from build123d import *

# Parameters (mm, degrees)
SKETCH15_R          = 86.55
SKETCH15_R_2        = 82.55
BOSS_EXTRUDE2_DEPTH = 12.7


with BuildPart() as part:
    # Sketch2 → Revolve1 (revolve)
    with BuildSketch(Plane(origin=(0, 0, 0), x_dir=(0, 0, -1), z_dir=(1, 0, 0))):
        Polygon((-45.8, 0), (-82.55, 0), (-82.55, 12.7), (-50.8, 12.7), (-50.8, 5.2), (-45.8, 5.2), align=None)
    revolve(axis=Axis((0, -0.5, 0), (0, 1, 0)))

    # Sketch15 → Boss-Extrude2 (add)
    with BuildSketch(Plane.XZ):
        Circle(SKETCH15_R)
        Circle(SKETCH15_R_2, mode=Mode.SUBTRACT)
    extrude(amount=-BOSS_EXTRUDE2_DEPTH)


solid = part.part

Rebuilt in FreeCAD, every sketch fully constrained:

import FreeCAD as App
import Part
import Sketcher
from FreeCAD import Vector

doc = App.newDocument("Part")
body = doc.addObject("PartDesign::Body", "Body")

# Sketch on YZ plane
sketch1 = doc.addObject("Sketcher::SketchObject", "Sketch")
body.addObject(sketch1)
sketch1.AttachmentSupport = (doc.YZ_Plane, [""])
sketch1.MapMode = "FlatFace"
sketch1.addGeometry([
    Part.LineSegment(Vector(0, 83, 0), Vector(0, 46, 0)),  # 0
    Part.LineSegment(Vector(0, 46, 0), Vector(5, 46, 0)),  # 1
    Part.LineSegment(Vector(5, 46, 0), Vector(5, 51, 0)),  # 2
    Part.LineSegment(Vector(5, 51, 0), Vector(13, 51, 0)),  # 3
    Part.LineSegment(Vector(13, 51, 0), Vector(13, 83, 0)),  # 4
    Part.LineSegment(Vector(13, 83, 0), Vector(0, 83, 0)),  # 5
], False)
sketch1.addConstraint([
    Sketcher.Constraint("Coincident", 0, 2, 1, 1),
    Sketcher.Constraint("Coincident", 1, 2, 2, 1),
    Sketcher.Constraint("Coincident", 2, 2, 3, 1),
    Sketcher.Constraint("Coincident", 3, 2, 4, 1),
    Sketcher.Constraint("Coincident", 4, 2, 5, 1),
    Sketcher.Constraint("Coincident", 5, 2, 0, 1),
    Sketcher.Constraint("Vertical", 0),
    Sketcher.Constraint("Horizontal", 1),
    Sketcher.Constraint("Vertical", 2),
    Sketcher.Constraint("Horizontal", 3),
    Sketcher.Constraint("Vertical", 4),
    Sketcher.Constraint("Horizontal", 5),
    Sketcher.Constraint("PointOnObject", 0, 2, -2),
    Sketcher.Constraint("DistanceY", 2, 1, 2, 2, 5.0),
    Sketcher.Constraint("DistanceX", 1, 1, 1, 2, 5.2),
    Sketcher.Constraint("DistanceX", 3, 1, 3, 2, 7.5),
    Sketcher.Constraint("DistanceY", 0, 2, 0, 1, 36.75),
    Sketcher.Constraint("DistanceY", -1, 1, 0, 2, 45.8),
])
revolution = doc.addObject("PartDesign::Revolution", "Revolution")
body.addObject(revolution)
revolution.Profile = sketch1
revolution.ReferenceAxis = (sketch1, ["H_Axis"])
revolution.Angle = 360

# Sketch on XZ plane
sketch2 = doc.addObject("Sketcher::SketchObject", "Sketch001")
body.addObject(sketch2)
sketch2.AttachmentSupport = (doc.XZ_Plane, [""])
sketch2.MapMode = "FlatFace"
sketch2.addGeometry([
    Part.Circle(Vector(0, 0, 0), Vector(0, 0, 1), 87),
    Part.Circle(Vector(0, 0, 0), Vector(0, 0, 1), 83),
], False)
sketch2.addConstraint([
    Sketcher.Constraint("Coincident", 0, 3, -1, 1),
    Sketcher.Constraint("Coincident", 1, 3, -1, 1),
    Sketcher.Constraint("Diameter", 0, 173.1),
    Sketcher.Constraint("Diameter", 1, 165.1),
])
pad1 = doc.addObject("PartDesign::Pad", "Pad")
body.addObject(pad1)
pad1.Profile = sketch2
pad1.Length = 12.7
pad1.Reversed = True

doc.recompute()
